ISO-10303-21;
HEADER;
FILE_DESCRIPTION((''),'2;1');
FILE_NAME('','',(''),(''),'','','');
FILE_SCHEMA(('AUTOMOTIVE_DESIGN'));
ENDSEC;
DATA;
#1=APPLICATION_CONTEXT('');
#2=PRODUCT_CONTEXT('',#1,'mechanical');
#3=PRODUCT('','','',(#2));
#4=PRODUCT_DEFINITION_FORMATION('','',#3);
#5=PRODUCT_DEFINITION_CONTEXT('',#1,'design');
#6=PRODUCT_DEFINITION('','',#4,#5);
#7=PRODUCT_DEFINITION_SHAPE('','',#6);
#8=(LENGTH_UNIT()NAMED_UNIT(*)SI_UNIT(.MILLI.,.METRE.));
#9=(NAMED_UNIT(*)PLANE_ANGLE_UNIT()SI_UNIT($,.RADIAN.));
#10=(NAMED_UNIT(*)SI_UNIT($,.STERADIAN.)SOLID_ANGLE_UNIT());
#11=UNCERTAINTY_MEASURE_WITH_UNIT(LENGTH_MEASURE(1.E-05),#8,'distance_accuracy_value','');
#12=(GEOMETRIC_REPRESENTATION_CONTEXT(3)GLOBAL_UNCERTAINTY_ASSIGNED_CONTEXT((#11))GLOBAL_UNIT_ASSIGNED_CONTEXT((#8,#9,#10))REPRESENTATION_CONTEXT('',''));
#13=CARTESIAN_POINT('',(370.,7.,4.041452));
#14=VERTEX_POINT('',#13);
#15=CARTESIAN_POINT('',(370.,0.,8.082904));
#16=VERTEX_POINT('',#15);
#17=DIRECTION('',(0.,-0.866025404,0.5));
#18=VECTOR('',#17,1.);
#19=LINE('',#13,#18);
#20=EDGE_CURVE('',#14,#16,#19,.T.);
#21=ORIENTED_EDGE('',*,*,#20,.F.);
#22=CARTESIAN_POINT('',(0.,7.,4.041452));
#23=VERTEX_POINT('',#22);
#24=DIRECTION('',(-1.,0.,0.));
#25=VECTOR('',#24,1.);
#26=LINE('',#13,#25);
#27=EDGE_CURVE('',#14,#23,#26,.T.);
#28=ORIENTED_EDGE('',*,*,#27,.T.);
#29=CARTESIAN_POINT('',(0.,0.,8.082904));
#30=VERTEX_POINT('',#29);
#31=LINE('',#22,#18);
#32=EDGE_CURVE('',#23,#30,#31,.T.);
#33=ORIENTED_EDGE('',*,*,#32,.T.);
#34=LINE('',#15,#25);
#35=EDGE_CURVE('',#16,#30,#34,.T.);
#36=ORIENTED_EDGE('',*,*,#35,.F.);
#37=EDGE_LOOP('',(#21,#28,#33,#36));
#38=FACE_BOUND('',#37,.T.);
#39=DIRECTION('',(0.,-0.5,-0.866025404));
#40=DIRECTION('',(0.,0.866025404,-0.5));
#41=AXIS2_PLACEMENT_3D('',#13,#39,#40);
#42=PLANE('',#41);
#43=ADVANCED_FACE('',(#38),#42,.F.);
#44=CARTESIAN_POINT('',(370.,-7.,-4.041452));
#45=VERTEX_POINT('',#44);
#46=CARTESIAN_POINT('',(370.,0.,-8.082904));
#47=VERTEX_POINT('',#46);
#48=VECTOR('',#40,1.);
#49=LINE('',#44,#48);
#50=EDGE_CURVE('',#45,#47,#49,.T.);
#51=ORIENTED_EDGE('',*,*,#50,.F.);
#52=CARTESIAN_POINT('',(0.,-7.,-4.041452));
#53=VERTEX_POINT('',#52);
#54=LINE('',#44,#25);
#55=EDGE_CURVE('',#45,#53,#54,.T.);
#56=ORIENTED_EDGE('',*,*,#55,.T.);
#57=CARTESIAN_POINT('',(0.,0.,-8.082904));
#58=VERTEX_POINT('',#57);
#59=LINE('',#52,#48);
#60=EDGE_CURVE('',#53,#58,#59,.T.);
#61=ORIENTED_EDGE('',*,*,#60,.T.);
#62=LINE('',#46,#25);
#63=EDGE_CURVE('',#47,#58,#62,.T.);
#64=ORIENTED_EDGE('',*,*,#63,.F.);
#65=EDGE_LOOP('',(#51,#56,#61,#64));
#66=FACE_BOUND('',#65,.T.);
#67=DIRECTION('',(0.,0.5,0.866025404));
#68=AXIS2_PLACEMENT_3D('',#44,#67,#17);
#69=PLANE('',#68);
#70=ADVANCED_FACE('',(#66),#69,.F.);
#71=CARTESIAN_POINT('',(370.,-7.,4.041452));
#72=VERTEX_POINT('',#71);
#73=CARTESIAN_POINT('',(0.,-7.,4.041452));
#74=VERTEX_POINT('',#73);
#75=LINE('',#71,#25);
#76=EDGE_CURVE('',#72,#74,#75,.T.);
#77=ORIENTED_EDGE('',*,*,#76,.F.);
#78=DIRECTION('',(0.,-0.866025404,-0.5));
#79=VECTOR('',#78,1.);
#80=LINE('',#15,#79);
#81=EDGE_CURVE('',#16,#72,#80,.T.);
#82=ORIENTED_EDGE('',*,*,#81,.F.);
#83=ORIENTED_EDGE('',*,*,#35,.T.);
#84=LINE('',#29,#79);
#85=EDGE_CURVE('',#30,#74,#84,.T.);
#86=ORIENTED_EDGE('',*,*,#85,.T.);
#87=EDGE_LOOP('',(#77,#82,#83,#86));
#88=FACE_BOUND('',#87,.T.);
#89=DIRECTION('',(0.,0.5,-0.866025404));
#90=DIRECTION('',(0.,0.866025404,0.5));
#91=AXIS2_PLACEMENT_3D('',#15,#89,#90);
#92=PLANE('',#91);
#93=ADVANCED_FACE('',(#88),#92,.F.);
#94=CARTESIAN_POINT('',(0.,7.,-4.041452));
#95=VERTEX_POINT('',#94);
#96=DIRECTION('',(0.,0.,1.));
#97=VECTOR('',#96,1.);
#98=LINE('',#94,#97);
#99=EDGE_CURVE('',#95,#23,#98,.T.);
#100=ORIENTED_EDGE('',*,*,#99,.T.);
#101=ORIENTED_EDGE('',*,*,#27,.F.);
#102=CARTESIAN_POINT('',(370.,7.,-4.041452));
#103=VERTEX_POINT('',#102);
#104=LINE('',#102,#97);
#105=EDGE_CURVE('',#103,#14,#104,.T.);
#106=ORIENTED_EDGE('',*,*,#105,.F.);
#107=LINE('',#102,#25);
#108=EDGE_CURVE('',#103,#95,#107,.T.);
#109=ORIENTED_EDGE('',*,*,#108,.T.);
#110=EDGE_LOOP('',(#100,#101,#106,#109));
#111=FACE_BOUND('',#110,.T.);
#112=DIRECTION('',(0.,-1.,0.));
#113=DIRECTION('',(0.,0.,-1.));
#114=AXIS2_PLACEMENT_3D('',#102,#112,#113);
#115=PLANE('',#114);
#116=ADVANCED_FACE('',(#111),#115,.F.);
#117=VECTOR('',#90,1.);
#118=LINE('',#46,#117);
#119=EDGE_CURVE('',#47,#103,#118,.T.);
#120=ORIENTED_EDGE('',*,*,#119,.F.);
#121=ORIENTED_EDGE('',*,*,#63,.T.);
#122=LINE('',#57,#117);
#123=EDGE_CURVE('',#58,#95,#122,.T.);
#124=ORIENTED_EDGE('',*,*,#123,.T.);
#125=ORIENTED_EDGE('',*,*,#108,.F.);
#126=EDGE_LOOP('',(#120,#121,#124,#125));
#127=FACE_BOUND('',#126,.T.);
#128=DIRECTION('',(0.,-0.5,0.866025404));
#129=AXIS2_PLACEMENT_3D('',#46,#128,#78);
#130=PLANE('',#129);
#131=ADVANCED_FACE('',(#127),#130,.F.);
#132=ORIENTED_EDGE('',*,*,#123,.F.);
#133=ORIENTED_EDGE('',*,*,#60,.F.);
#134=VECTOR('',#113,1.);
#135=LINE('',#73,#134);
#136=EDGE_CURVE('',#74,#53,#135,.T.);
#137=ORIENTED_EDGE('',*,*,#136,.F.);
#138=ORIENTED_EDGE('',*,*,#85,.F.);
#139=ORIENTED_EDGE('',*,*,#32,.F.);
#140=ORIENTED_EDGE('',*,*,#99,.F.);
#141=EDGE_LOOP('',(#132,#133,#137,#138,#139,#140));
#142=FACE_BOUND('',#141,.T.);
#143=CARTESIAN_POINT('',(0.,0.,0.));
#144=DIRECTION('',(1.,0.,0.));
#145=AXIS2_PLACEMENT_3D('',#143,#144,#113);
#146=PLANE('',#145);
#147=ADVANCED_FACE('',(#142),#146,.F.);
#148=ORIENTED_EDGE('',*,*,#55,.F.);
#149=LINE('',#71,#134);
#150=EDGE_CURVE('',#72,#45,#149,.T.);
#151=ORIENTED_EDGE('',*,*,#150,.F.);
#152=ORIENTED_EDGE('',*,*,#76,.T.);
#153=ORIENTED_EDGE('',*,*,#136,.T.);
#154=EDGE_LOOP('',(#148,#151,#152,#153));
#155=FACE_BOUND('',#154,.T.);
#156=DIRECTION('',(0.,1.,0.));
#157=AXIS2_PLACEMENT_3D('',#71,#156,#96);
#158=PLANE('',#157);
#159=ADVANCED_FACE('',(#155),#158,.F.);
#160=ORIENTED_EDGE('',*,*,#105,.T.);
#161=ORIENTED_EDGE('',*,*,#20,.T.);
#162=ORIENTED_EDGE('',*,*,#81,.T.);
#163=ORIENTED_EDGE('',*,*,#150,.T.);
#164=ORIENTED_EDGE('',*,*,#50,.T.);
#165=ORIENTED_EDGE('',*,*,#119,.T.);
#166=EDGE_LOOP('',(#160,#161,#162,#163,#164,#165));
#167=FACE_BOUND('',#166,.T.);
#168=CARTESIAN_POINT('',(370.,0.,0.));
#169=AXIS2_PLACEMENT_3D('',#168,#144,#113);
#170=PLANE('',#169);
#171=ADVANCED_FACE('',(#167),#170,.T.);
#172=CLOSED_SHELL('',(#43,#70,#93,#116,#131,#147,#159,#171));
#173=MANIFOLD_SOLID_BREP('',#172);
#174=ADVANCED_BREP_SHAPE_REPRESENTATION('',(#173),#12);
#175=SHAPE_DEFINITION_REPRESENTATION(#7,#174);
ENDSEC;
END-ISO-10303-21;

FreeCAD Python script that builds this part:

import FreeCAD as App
import Part
import Sketcher

V = App.Vector
Q = App.Units.Quantity

doc = App.newDocument("Part")
body = doc.addObject("PartDesign::Body", "Body")

# Sketch on YZ plane
sketch1 = doc.addObject("Sketcher::SketchObject", "Sketch")
body.addObject(sketch1)
sketch1.AttachmentSupport = (doc.YZ_Plane, [""])
sketch1.MapMode = "FlatFace"
sketch1.addGeometry([
    Part.LineSegment(V(0, -8, 0), V(7, -4, 0)),  # 0
    Part.LineSegment(V(7, -4, 0), V(7, 4, 0)),  # 1
    Part.LineSegment(V(7, 4, 0), V(0, 8, 0)),  # 2
    Part.LineSegment(V(0, 8, 0), V(-7, 4, 0)),  # 3
    Part.LineSegment(V(-7, 4, 0), V(-7, -4, 0)),  # 4
    Part.LineSegment(V(-7, -4, 0), V(0, -8, 0)),  # 5
], False)
sketch1.addConstraint([
    Sketcher.Constraint("Coincident", 0, 2, 1, 1),
    Sketcher.Constraint("Coincident", 1, 2, 2, 1),
    Sketcher.Constraint("Coincident", 2, 2, 3, 1),
    Sketcher.Constraint("Coincident", 3, 2, 4, 1),
    Sketcher.Constraint("Coincident", 4, 2, 5, 1),
    Sketcher.Constraint("Coincident", 5, 2, 0, 1),
    Sketcher.Constraint("Vertical", 1),
    Sketcher.Constraint("Vertical", 4),
    Sketcher.Constraint("Symmetric", 0, 2, 3, 2, -1, 1),
    Sketcher.Constraint("Symmetric", 2, 2, 5, 2, -1, 1),
    Sketcher.Constraint("PointOnObject", 2, 2, -2),
    Sketcher.Constraint("Parallel", 2, 5),
    Sketcher.Constraint("Horizontal", 1, 2, 3, 2),
    Sketcher.Constraint("Angle", 0, Q("30 deg")),
    Sketcher.Constraint("DistanceX", -1, 1, 0, 2, Q("7 mm")),
    Sketcher.Constraint("DistanceY", 1, 1, 1, 2, Q("8.082904 mm")),
])
pad1 = doc.addObject("PartDesign::Pad", "Pad")
body.addObject(pad1)
pad1.Profile = sketch1
pad1.Length = 370

doc.recompute()
